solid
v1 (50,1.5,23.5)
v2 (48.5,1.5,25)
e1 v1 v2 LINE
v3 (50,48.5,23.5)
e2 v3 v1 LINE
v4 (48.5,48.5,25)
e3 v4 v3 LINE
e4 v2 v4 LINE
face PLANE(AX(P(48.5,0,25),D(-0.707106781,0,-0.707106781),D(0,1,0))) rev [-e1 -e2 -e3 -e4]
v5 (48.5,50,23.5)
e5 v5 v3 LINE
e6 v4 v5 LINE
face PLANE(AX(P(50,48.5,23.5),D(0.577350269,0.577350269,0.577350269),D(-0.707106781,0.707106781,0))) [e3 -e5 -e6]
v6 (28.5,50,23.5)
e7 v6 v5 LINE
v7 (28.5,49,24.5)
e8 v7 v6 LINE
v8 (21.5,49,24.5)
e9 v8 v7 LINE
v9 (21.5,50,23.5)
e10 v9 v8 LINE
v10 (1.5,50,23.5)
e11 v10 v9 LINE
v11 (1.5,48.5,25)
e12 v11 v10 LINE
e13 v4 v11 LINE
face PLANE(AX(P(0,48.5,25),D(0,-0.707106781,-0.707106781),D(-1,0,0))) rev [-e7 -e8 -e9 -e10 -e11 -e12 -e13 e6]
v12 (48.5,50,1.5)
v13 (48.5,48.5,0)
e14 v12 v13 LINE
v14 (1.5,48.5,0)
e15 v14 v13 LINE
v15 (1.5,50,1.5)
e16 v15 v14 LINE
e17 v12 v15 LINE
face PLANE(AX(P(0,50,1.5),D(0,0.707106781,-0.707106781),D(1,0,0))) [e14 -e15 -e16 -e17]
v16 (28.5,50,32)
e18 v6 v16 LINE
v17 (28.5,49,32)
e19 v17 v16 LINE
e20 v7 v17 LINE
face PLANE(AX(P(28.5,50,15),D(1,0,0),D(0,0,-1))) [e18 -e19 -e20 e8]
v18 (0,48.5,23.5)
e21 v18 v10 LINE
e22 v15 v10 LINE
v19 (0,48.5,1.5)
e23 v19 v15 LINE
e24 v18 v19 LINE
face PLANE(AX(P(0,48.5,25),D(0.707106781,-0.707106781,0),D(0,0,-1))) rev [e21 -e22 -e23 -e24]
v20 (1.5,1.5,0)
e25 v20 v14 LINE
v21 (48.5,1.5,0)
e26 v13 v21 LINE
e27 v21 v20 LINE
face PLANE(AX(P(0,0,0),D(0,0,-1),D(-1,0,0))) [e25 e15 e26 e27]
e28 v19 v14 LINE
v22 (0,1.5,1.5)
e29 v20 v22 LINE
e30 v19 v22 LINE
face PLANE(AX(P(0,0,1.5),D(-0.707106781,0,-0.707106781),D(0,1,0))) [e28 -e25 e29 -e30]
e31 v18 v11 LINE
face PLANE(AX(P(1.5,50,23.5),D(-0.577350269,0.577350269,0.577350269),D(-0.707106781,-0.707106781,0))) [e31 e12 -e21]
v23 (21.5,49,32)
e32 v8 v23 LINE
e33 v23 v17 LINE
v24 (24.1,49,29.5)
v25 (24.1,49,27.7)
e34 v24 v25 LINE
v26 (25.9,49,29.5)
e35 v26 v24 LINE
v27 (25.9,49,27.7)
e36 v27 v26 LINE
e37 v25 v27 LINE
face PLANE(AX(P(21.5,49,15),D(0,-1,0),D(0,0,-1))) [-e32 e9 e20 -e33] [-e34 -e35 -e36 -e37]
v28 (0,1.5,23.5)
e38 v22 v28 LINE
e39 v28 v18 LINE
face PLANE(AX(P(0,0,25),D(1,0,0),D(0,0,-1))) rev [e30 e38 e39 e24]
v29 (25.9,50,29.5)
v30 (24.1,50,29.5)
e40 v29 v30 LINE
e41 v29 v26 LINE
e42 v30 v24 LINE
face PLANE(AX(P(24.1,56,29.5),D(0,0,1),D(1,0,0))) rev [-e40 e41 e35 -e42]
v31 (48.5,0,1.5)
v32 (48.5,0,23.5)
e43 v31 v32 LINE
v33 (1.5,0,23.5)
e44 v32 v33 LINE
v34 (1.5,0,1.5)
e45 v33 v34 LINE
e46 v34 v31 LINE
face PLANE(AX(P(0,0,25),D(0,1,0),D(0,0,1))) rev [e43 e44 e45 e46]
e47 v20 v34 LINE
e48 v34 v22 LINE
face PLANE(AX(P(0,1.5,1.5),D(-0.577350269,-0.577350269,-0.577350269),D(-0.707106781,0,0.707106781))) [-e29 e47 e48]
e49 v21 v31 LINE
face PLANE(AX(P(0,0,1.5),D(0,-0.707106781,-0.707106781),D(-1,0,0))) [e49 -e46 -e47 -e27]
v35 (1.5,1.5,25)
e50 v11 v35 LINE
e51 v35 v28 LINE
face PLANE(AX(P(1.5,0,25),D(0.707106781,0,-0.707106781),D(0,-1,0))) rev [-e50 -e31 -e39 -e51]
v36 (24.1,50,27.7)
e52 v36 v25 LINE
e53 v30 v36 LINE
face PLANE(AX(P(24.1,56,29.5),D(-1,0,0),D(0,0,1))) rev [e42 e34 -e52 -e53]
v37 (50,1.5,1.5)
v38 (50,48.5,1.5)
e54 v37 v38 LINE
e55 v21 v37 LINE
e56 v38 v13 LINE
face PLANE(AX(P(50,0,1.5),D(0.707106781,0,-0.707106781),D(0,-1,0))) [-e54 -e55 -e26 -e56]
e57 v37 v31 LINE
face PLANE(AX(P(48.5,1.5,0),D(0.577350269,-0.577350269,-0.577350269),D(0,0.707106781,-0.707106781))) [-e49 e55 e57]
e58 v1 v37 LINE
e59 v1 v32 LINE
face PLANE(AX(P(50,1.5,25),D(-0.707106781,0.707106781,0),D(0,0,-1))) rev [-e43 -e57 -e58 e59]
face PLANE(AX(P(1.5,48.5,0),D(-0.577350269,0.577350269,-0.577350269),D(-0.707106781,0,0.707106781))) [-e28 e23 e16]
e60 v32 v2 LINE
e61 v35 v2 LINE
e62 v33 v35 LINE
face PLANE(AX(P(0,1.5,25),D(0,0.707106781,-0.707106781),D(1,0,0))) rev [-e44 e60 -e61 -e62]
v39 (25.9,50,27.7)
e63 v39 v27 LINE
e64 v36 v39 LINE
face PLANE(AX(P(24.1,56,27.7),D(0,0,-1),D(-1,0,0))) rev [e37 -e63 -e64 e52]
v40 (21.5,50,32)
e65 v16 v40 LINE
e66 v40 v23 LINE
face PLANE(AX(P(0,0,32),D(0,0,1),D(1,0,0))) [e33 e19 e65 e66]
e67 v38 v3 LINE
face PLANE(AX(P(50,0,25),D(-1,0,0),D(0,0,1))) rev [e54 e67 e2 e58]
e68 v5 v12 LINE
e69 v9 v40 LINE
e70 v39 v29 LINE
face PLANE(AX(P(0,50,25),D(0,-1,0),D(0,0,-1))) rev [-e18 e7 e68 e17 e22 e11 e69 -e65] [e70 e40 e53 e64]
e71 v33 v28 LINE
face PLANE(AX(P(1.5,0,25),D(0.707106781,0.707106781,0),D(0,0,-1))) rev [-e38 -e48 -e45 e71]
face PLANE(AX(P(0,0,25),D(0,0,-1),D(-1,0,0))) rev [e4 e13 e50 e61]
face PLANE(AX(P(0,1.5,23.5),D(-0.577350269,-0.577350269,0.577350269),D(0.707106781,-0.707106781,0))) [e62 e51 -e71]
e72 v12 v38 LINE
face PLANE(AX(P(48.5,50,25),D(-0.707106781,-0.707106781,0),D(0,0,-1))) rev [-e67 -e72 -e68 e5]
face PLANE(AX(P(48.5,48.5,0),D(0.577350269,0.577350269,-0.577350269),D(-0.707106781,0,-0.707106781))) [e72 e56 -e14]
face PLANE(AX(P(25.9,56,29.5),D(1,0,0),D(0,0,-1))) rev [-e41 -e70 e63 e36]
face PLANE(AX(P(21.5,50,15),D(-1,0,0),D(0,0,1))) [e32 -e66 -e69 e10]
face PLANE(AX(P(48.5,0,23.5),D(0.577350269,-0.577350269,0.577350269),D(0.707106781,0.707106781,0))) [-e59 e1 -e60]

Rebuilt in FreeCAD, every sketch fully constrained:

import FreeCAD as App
import Part
import Sketcher

V = App.Vector


def add_polygon(sketch, points):
    """Adds a closed chain of lines whose ends are joined by coincident constraints."""
    first, n = sketch.GeometryCount, len(points)
    for a, b in zip(points, points[1:] + points[:1]):
        sketch.addGeometry(Part.LineSegment(App.Vector(*a, 0), App.Vector(*b, 0)), False)
    for i in range(n):
        sketch.addConstraint(Sketcher.Constraint("Coincident", first + i, 2, first + (i + 1) % n, 1))

doc = App.newDocument("Part")
params = doc.addObject("Spreadsheet::Sheet", "Params")
for row, (alias, value) in enumerate([
    ("sketch1_width", "50 mm"),
    ("pad1_length", "25 mm"),
    ("chamfer_size", "1.5 mm"),
    ("sketch2_width", "7 mm"),
    ("sketch2_height", "1 mm"),
    ("pad2_length", "7 mm"),
    ("pad2_length2", "10 mm"),
    ("sketch3_width", "1.8 mm"),
    ("pocket1_length", "7 mm"),
], start=1):
    params.set(f"A{row}", alias)
    params.set(f"B{row}", "=" + value)
    params.setAlias(f"B{row}", alias)

body = doc.addObject("PartDesign::Body", "Body")

# Sketch on XY plane
sketch1 = body.newObject("Sketcher::SketchObject", "Sketch")
sketch1.AttachmentSupport = (doc.getObject("XY_Plane"), [""])
sketch1.MapMode = "FlatFace"
add_polygon(sketch1, [(0, 50), (0, 0), (50, 0), (50, 50)])  # lines 0-3
sketch1.addConstraint([
    Sketcher.Constraint("Vertical", 0),
    Sketcher.Constraint("Horizontal", 1),
    Sketcher.Constraint("Vertical", 2),
    Sketcher.Constraint("Horizontal", 3),
    Sketcher.Constraint("Coincident", 0, 2, -1, 1),
    Sketcher.Constraint("Equal", 3, 0),
    Sketcher.Constraint("DistanceX", 1, 1, 1, 2, 50.0),
])
sketch1.setExpression("Constraints[10]", "Params.sketch1_width")
pad1 = body.newObject("PartDesign::Pad", "Pad")
pad1.Profile = sketch1
pad1.setExpression("Length", "Params.pad1_length")
doc.recompute()

chamfer = body.newObject("PartDesign::Chamfer", "Chamfer")
chamfer.Base = (pad1, ["Edge1"])
chamfer.UseAllEdges = True
chamfer.setExpression("Size", "Params.chamfer_size")

# Sketch on XY plane
sketch2 = body.newObject("Sketcher::SketchObject", "Sketch001")
sketch2.AttachmentSupport = (doc.getObject("XY_Plane"), [""])
sketch2.MapMode = "FlatFace"
sketch2.AttachmentOffset = App.Placement(V(0, 0, 25), App.Rotation())
add_polygon(sketch2, [(21.5, 50), (21.5, 49), (28.5, 49), (28.5, 50)])  # lines 0-3
sketch2.addConstraint([
    Sketcher.Constraint("Vertical", 0),
    Sketcher.Constraint("Horizontal", 1),
    Sketcher.Constraint("Vertical", 2),
    Sketcher.Constraint("Horizontal", 3),
    Sketcher.Constraint("DistanceX", 1, 1, 1, 2, 7.0),
    Sketcher.Constraint("DistanceY", 0, 2, 0, 1, 1.0),
    Sketcher.Constraint("DistanceY", -1, 1, 0, 2, 49.0),
    Sketcher.Constraint("DistanceX", -1, 1, 0, 2, 21.5),
])
sketch2.setExpression("Constraints[8]", "Params.sketch2_width")
sketch2.setExpression("Constraints[9]", "Params.sketch2_height")
pad2 = body.newObject("PartDesign::Pad", "Pad001")
pad2.Profile = sketch2
pad2.Type = "TwoLengths"
pad2.setExpression("Length", "Params.pad2_length")
pad2.setExpression("Length2", "Params.pad2_length2")

# Sketch on XZ plane
sketch3 = body.newObject("Sketcher::SketchObject", "Sketch002")
sketch3.AttachmentSupport = (doc.getObject("XZ_Plane"), [""])
sketch3.MapMode = "FlatFace"
sketch3.AttachmentOffset = App.Placement(V(0, 0, -49), App.Rotation())
add_polygon(sketch3, [(24.1, 29.5), (24.1, 27.7), (25.9, 27.7), (25.9, 29.5)])  # lines 0-3
sketch3.addConstraint([
    Sketcher.Constraint("Vertical", 0),
    Sketcher.Constraint("Horizontal", 1),
    Sketcher.Constraint("Vertical", 2),
    Sketcher.Constraint("Horizontal", 3),
    Sketcher.Constraint("Equal", 3, 0),
    Sketcher.Constraint("DistanceX", 1, 1, 1, 2, 1.8),
    Sketcher.Constraint("DistanceX", -1, 1, 0, 2, 24.1),
    Sketcher.Constraint("DistanceY", -1, 1, 0, 2, 27.7),
])
sketch3.setExpression("Constraints[9]", "Params.sketch3_width")
pocket1 = body.newObject("PartDesign::Pocket", "Pocket")
pocket1.Profile = sketch3
pocket1.setExpression("Length", "Params.pocket1_length")

doc.recompute()
